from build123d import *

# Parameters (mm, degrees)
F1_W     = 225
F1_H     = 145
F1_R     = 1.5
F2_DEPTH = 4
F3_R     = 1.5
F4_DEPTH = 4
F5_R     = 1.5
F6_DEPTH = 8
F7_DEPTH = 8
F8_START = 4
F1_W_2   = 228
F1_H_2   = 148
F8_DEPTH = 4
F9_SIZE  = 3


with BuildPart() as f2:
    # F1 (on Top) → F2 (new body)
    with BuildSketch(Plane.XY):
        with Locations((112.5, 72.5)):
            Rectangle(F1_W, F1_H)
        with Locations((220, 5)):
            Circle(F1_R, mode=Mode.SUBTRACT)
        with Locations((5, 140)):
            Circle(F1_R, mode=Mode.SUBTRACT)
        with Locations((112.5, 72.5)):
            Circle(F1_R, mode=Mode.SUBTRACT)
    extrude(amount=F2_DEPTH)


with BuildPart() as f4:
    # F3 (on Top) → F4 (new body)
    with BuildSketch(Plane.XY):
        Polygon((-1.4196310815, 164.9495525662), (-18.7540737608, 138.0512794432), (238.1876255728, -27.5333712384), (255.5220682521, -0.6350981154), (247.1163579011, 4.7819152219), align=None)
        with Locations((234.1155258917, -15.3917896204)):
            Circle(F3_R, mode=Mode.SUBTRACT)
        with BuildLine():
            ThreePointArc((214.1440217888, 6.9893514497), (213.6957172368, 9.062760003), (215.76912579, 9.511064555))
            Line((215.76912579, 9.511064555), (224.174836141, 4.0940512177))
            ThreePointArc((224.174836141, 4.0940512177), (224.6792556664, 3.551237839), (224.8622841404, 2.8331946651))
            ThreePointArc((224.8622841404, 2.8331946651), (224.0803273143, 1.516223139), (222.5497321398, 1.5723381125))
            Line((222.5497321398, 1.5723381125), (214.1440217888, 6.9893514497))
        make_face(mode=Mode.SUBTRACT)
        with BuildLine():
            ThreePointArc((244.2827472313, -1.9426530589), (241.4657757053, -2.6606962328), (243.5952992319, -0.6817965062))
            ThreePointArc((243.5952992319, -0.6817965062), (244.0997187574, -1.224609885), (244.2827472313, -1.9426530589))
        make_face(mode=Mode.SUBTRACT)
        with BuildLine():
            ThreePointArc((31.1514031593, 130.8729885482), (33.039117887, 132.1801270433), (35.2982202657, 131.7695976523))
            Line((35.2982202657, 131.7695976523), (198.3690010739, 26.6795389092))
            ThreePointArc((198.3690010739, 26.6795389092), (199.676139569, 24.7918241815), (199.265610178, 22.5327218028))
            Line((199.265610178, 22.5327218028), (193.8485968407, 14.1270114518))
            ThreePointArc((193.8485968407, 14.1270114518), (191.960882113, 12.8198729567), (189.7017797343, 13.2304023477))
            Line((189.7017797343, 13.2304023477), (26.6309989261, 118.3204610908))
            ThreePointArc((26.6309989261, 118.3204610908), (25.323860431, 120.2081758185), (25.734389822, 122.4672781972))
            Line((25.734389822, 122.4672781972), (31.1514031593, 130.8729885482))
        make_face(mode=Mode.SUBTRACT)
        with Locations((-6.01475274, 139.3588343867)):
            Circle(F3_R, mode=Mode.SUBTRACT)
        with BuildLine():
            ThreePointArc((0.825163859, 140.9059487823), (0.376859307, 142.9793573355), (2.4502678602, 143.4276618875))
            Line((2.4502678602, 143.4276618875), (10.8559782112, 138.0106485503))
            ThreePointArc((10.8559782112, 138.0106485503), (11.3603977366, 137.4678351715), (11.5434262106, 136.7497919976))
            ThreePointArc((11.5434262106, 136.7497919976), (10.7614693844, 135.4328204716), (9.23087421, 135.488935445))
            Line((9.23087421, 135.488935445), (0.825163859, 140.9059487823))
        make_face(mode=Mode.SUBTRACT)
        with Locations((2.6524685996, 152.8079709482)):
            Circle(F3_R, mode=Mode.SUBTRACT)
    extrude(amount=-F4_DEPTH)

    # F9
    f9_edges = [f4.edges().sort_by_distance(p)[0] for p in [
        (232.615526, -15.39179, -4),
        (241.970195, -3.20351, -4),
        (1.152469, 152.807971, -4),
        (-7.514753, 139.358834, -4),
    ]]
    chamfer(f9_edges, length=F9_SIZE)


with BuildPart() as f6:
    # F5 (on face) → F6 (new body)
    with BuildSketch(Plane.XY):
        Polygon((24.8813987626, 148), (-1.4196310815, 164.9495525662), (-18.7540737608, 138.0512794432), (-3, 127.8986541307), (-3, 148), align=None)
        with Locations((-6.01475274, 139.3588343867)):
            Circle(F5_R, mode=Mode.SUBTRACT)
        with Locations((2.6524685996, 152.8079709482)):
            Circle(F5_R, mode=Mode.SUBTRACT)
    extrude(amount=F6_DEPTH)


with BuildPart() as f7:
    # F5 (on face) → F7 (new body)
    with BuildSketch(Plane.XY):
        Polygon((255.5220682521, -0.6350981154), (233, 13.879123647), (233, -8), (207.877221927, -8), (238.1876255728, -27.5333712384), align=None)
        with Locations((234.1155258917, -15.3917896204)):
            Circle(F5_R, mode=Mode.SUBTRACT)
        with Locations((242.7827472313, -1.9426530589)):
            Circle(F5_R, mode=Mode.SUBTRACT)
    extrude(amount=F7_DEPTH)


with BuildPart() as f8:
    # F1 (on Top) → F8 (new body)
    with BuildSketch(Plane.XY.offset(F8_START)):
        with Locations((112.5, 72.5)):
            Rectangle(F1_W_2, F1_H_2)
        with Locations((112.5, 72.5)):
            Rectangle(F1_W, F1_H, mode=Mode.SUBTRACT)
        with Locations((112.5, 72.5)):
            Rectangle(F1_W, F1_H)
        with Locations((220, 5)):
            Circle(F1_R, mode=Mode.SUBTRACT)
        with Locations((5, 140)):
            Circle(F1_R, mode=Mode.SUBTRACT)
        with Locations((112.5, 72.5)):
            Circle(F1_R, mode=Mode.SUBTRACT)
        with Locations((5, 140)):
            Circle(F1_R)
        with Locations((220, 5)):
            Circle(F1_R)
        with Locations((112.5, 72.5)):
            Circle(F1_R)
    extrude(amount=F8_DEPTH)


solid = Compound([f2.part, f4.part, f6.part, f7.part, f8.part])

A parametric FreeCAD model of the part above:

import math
import FreeCAD as App
import Part
import Sketcher

V = App.Vector
Q = App.Units.Quantity


def edges_at(feature, points):
    """Names of the edges that pass closest to the given points."""
    edges = feature.Shape.Edges
    near = lambda p: min(range(len(edges)), key=lambda i: edges[i].distToShape(Part.Vertex(*p))[0])
    return sorted({f"Edge{near(p) + 1}" for p in points})

doc = App.newDocument("Part")
body = doc.addObject("PartDesign::Body", "Body")

# Sketch on XY plane
sketch1 = body.newObject("Sketcher::SketchObject", "Sketch")
sketch1.AttachmentSupport = (doc.getObject("XY_Plane"), [""])
sketch1.MapMode = "FlatFace"
sketch1.addGeometry(Part.LineSegment(V(0, 145, 0), V(0, 0, 0)), False)
sketch1.addGeometry(Part.LineSegment(V(0, 0, 0), V(225, 0, 0)), False)
sketch1.addGeometry(Part.LineSegment(V(225, 0, 0), V(225, 145, 0)), False)
sketch1.addGeometry(Part.LineSegment(V(225, 145, 0), V(0, 145, 0)), False)
sketch1.addGeometry(Part.Circle(V(220, 5, 0), V(0, 0, 1), 1.5), False)
sketch1.addGeometry(Part.Circle(V(5, 140, 0), V(0, 0, 1), 1.5), False)
sketch1.addGeometry(Part.Circle(V(112.5, 72.5, 0), V(0, 0, 1), 1.5), False)
sketch1.addConstraint(Sketcher.Constraint("Coincident", 0, 2, 1, 1))
sketch1.addConstraint(Sketcher.Constraint("Coincident", 1, 2, 2, 1))
sketch1.addConstraint(Sketcher.Constraint("Coincident", 2, 2, 3, 1))
sketch1.addConstraint(Sketcher.Constraint("Coincident", 3, 2, 0, 1))
sketch1.addConstraint(Sketcher.Constraint("Vertical", 0))
sketch1.addConstraint(Sketcher.Constraint("Horizontal", 1))
sketch1.addConstraint(Sketcher.Constraint("Vertical", 2))
sketch1.addConstraint(Sketcher.Constraint("Horizontal", 3))
sketch1.addConstraint(Sketcher.Constraint("Coincident", 0, 2, -1, 1))
sketch1.addConstraint(Sketcher.Constraint("Equal", 4, 5))
sketch1.addConstraint(Sketcher.Constraint("Equal", 5, 6))
sketch1.addConstraint(Sketcher.Constraint("Diameter", 4, Q("3 mm")))
sketch1.addConstraint(Sketcher.Constraint("DistanceX", 1, 1, 1, 2, Q("225 mm")))
sketch1.addConstraint(Sketcher.Constraint("DistanceY", 0, 2, 0, 1, Q("145 mm")))
sketch1.addConstraint(Sketcher.Constraint("DistanceX", -1, 1, 4, 3, Q("220 mm")))
sketch1.addConstraint(Sketcher.Constraint("DistanceY", -1, 1, 4, 3, Q("5 mm")))
sketch1.addConstraint(Sketcher.Constraint("DistanceX", -1, 1, 5, 3, Q("5 mm")))
sketch1.addConstraint(Sketcher.Constraint("DistanceY", -1, 1, 5, 3, Q("140 mm")))
sketch1.addConstraint(Sketcher.Constraint("DistanceX", -1, 1, 6, 3, Q("112.5 mm")))
sketch1.addConstraint(Sketcher.Constraint("DistanceY", -1, 1, 6, 3, Q("72.5 mm")))
pad1 = body.newObject("PartDesign::Pad", "Pad")
pad1.Profile = sketch1
pad1.Length = 4
body2 = doc.addObject("PartDesign::Body", "Body001")

# Sketch on XY plane
sketch2 = body2.newObject("Sketcher::SketchObject", "Sketch001")
sketch2.AttachmentSupport = (doc.getObject("XY_Plane001"), [""])
sketch2.MapMode = "FlatFace"
sketch2.addGeometry(Part.LineSegment(V(-1.4, 164.9, 0), V(-18.8, 138.1, 0)), False)
sketch2.addGeometry(Part.LineSegment(V(-18.8, 138.1, 0), V(238.2, -27.5, 0)), False)
sketch2.addGeometry(Part.LineSegment(V(238.2, -27.5, 0), V(255.5, -0.6, 0)), False)
sketch2.addGeometry(Part.LineSegment(V(255.5, -0.6, 0), V(-1.4, 164.9, 0)), False)
sketch2.addGeometry(Part.Circle(V(234.1, -15.4, 0), V(0, 0, 1), 1.5), False)
sketch2.addGeometry(Part.ArcOfCircle(Part.Circle(V(242.8, -1.9, 0), V(0, 0, 1), 1.5), math.radians(0), math.radians(57)), False)
sketch2.addGeometry(Part.ArcOfCircle(Part.Circle(V(242.8, -1.9, 0), V(0, 0, 1), 1.5), math.radians(57), math.radians(360)), False)
sketch2.addGeometry(Part.LineSegment(V(222.5, 1.6, 0), V(214.1, 7, 0)), False)
sketch2.addGeometry(Part.ArcOfCircle(Part.Circle(V(215, 8.3, 0), V(0, 0, 1), 1.5), math.radians(57), math.radians(237)), False)
sketch2.addGeometry(Part.LineSegment(V(215.8, 9.5, 0), V(224.2, 4.1, 0)), False)
sketch2.addGeometry(Part.ArcOfCircle(Part.Circle(V(223.4, 2.8, 0), V(0, 0, 1), 1.5), math.radians(0), math.radians(57)), False)
sketch2.addGeometry(Part.ArcOfCircle(Part.Circle(V(223.4, 2.8, 0), V(0, 0, 1), 1.5), math.radians(-123), math.radians(0)), False)
sketch2.addGeometry(Part.LineSegment(V(25.7, 122.5, 0), V(31.2, 130.9, 0)), False)
sketch2.addGeometry(Part.ArcOfCircle(Part.Circle(V(33.7, 129.2, 0), V(0, 0, 1), 3), math.radians(57), math.radians(147)), False)
sketch2.addGeometry(Part.LineSegment(V(35.3, 131.8, 0), V(198.4, 26.7, 0)), False)
sketch2.addGeometry(Part.ArcOfCircle(Part.Circle(V(196.7, 24.2, 0), V(0, 0, 1), 3), math.radians(-33), math.radians(57)), False)
sketch2.addGeometry(Part.LineSegment(V(199.3, 22.5, 0), V(193.8, 14.1, 0)), False)
sketch2.addGeometry(Part.ArcOfCircle(Part.Circle(V(191.3, 15.8, 0), V(0, 0, 1), 3), math.radians(-123), math.radians(-33)), False)
sketch2.addGeometry(Part.LineSegment(V(189.7, 13.2, 0), V(26.6, 118.3, 0)), False)
sketch2.addGeometry(Part.ArcOfCircle(Part.Circle(V(28.3, 120.8, 0), V(0, 0, 1), 3), math.radians(147), math.radians(237)), False)
sketch2.addGeometry(Part.Circle(V(-6, 139.4, 0), V(0, 0, 1), 1.5), False)
sketch2.addGeometry(Part.LineSegment(V(9.2, 135.5, 0), V(0.8, 140.9, 0)), False)
sketch2.addGeometry(Part.ArcOfCircle(Part.Circle(V(1.6, 142.2, 0), V(0, 0, 1), 1.5), math.radians(57), math.radians(237)), False)
sketch2.addGeometry(Part.LineSegment(V(2.5, 143.4, 0), V(10.9, 138, 0)), False)
sketch2.addGeometry(Part.ArcOfCircle(Part.Circle(V(10, 136.7, 0), V(0, 0, 1), 1.5), math.radians(0), math.radians(57)), False)
sketch2.addGeometry(Part.ArcOfCircle(Part.Circle(V(10, 136.7, 0), V(0, 0, 1), 1.5), math.radians(-123), math.radians(0)), False)
sketch2.addGeometry(Part.Circle(V(2.7, 152.8, 0), V(0, 0, 1), 1.5), False)
sketch2.addConstraint(Sketcher.Constraint("Coincident", 0, 2, 1, 1))
sketch2.addConstraint(Sketcher.Constraint("Coincident", 1, 2, 2, 1))
sketch2.addConstraint(Sketcher.Constraint("Coincident", 2, 2, 3, 1))
sketch2.addConstraint(Sketcher.Constraint("Coincident", 3, 2, 0, 1))
sketch2.addConstraint(Sketcher.Constraint("Tangent", 5, 1, 6, 2))
sketch2.addConstraint(Sketcher.Constraint("Coincident", 6, 1, 5, 2))
sketch2.addConstraint(Sketcher.Constraint("Tangent", 7, 2, 8, 2))
sketch2.addConstraint(Sketcher.Constraint("Tangent", 8, 1, 9, 1))
sketch2.addConstraint(Sketcher.Constraint("Tangent", 9, 2, 10, 2))
sketch2.addConstraint(Sketcher.Constraint("Tangent", 10, 1, 11, 2))
sketch2.addConstraint(Sketcher.Constraint("Tangent", 11, 1, 7, 1))
sketch2.addConstraint(Sketcher.Constraint("Tangent", 12, 2, 13, 2))
sketch2.addConstraint(Sketcher.Constraint("Tangent", 13, 1, 14, 1))
sketch2.addConstraint(Sketcher.Constraint("Tangent", 14, 2, 15, 2))
sketch2.addConstraint(Sketcher.Constraint("Tangent", 15, 1, 16, 1))
sketch2.addConstraint(Sketcher.Constraint("Tangent", 16, 2, 17, 2))
sketch2.addConstraint(Sketcher.Constraint("Tangent", 17, 1, 18, 1))
sketch2.addConstraint(Sketcher.Constraint("Tangent", 18, 2, 19, 2))
sketch2.addConstraint(Sketcher.Constraint("Tangent", 19, 1, 12, 1))
sketch2.addConstraint(Sketcher.Constraint("Tangent", 21, 2, 22, 2))
sketch2.addConstraint(Sketcher.Constraint("Tangent", 22, 1, 23, 1))
sketch2.addConstraint(Sketcher.Constraint("Tangent", 23, 2, 24, 2))
sketch2.addConstraint(Sketcher.Constraint("Tangent", 24, 1, 25, 2))
sketch2.addConstraint(Sketcher.Constraint("Tangent", 25, 1, 21, 1))
sketch2.addConstraint(Sketcher.Constraint("Equal", 4, 5))
sketch2.addConstraint(Sketcher.Constraint("Equal", 6, 8))
sketch2.addConstraint(Sketcher.Constraint("Equal", 8, 10))
sketch2.addConstraint(Sketcher.Constraint("Equal", 10, 11))
sketch2.addConstraint(Sketcher.Constraint("Equal", 13, 15))
sketch2.addConstraint(Sketcher.Constraint("Equal", 15, 17))
sketch2.addConstraint(Sketcher.Constraint("Equal", 17, 19))
sketch2.addConstraint(Sketcher.Constraint("Equal", 11, 20))
sketch2.addConstraint(Sketcher.Constraint("Equal", 20, 22))
sketch2.addConstraint(Sketcher.Constraint("Equal", 22, 24))
sketch2.addConstraint(Sketcher.Constraint("Equal", 24, 25))
sketch2.addConstraint(Sketcher.Constraint("Equal", 25, 26))
sketch2.addConstraint(Sketcher.Constraint("Perpendicular", 0, 1))
sketch2.addConstraint(Sketcher.Constraint("Perpendicular", 1, 2))
sketch2.addConstraint(Sketcher.Constraint("Perpendicular", 2, 3))
sketch2.addConstraint(Sketcher.Constraint("Parallel", 3, 7))
sketch2.addConstraint(Sketcher.Constraint("Perpendicular", 9, 12))
sketch2.addConstraint(Sketcher.Constraint("Perpendicular", 12, 14))
sketch2.addConstraint(Sketcher.Constraint("Perpendicular", 14, 16))
sketch2.addConstraint(Sketcher.Constraint("Perpendicular", 16, 18))
sketch2.addConstraint(Sketcher.Constraint("Parallel", 18, 21))
sketch2.addConstraint(Sketcher.Constraint("Horizontal", 6, 3, 5, 1))
sketch2.addConstraint(Sketcher.Constraint("Horizontal", 11, 3, 10, 1))
sketch2.addConstraint(Sketcher.Constraint("Horizontal", 25, 3, 24, 1))
sketch2.addConstraint(Sketcher.Constraint("Equal", 9, 12))
sketch2.addConstraint(Sketcher.Constraint("Equal", 16, 21))
sketch2.addConstraint(Sketcher.Constraint("Diameter", 4, Q("3 mm")))
sketch2.addConstraint(Sketcher.Constraint("Radius", 13, Q("3 mm")))
sketch2.addConstraint(Sketcher.Constraint("Distance", 0, Q("32 mm")))
sketch2.addConstraint(Sketcher.Constraint("Distance", 7, Q("10 mm")))
sketch2.addConstraint(Sketcher.Constraint("Distance", 14, Q("194 mm")))
sketch2.addConstraint(Sketcher.Constraint("DistanceX", -1, 1, 14, 2, Q("198.369001 mm")))
sketch2.addConstraint(Sketcher.Constraint("DistanceX", -1, 1, 18, 2, Q("26.630999 mm")))
sketch2.addConstraint(Sketcher.Constraint("DistanceY", 2, 2, -1, 1, Q("0.635098 mm")))
sketch2.addConstraint(Sketcher.Constraint("DistanceX", -1, 1, 6, 1, Q("243.595299 mm")))
sketch2.addConstraint(Sketcher.Constraint("DistanceX", 17, 3, 10, 3, Q("32.0354 mm")))
sketch2.addConstraint(Sketcher.Constraint("DistanceX", 22, 3, 13, 3, Q("32.0354 mm")))
sketch2.addConstraint(Sketcher.Constraint("DistanceX", 0, 2, 24, 3, Q("28.7975 mm")))
sketch2.addConstraint(Sketcher.Constraint("DistanceX", 4, 3, 1, 2, Q("4.0721 mm")))
sketch2.addConstraint(Sketcher.Constraint("DistanceX", 3, 2, 26, 3, Q("4.0721 mm")))
sketch2.addConstraint(Sketcher.Constraint("DistanceY", 6, 1, 2, 2, Q("0.046698 mm")))
sketch2.addConstraint(Sketcher.Constraint("DistanceY", 4, 3, -1, 1, Q("15.39179 mm")))
sketch2.addConstraint(Sketcher.Constraint("DistanceY", -1, 1, 8, 3, Q("8.250208 mm")))
sketch2.addConstraint(Sketcher.Constraint("DistanceY", -1, 1, 24, 3, Q("136.749792 mm")))
sketch2.addConstraint(Sketcher.Constraint("DistanceY", -1, 1, 26, 3, Q("152.807971 mm")))
sketch2.addConstraint(Sketcher.Constraint("DistanceY", -1, 1, 0, 2, Q("138.051279 mm")))
sketch2.addConstraint(Sketcher.Constraint("DistanceY", -1, 1, 12, 2, Q("130.872989 mm")))
sketch2.addConstraint(Sketcher.Constraint("DistanceX", 4, 3, 5, 3, Q("8.667221 mm")))
sketch2.addConstraint(Sketcher.Constraint("DistanceY", 19, 3, 20, 3, Q("18.51666 mm")))
sketch2.addConstraint(Sketcher.Constraint("DistanceX", 20, 3, 13, 3, Q("39.687869 mm")))
pad2 = body2.newObject("PartDesign::Pad", "Pad001")
pad2.Profile = sketch2
pad2.Length = 4
pad2.Reversed = True
doc.recompute()

chamfer = body2.newObject("PartDesign::Chamfer", "Chamfer")
chamfer.Base = (pad2, edges_at(pad2, [
    (232.616, -15.392, -4),
    (241.466, -2.661, -4),
    (1.152, 152.808, -4),
    (-7.515, 139.359, -4),
]))
chamfer.Size = 3
body3 = doc.addObject("PartDesign::Body", "Body002")

# Sketch on XY plane
sketch3 = body3.newObject("Sketcher::SketchObject", "Sketch002")
sketch3.AttachmentSupport = (doc.getObject("XY_Plane002"), [""])
sketch3.MapMode = "FlatFace"
sketch3.addGeometry(Part.LineSegment(V(24.9, 148, 0), V(-1.4, 164.9, 0)), False)
sketch3.addGeometry(Part.LineSegment(V(-1.4, 164.9, 0), V(-18.8, 138.1, 0)), False)
sketch3.addGeometry(Part.LineSegment(V(-18.8, 138.1, 0), V(-3, 127.9, 0)), False)
sketch3.addGeometry(Part.LineSegment(V(-3, 127.9, 0), V(-3, 148, 0)), False)
sketch3.addGeometry(Part.LineSegment(V(-3, 148, 0), V(24.9, 148, 0)), False)
sketch3.addGeometry(Part.Circle(V(-6, 139.4, 0), V(0, 0, 1), 1.5), False)
sketch3.addGeometry(Part.Circle(V(2.7, 152.8, 0), V(0, 0, 1), 1.5), False)
sketch3.addConstraint(Sketcher.Constraint("Coincident", 0, 2, 1, 1))
sketch3.addConstraint(Sketcher.Constraint("Coincident", 1, 2, 2, 1))
sketch3.addConstraint(Sketcher.Constraint("Coincident", 2, 2, 3, 1))
sketch3.addConstraint(Sketcher.Constraint("Coincident", 3, 2, 4, 1))
sketch3.addConstraint(Sketcher.Constraint("Coincident", 4, 2, 0, 1))
sketch3.addConstraint(Sketcher.Constraint("Vertical", 3))
sketch3.addConstraint(Sketcher.Constraint("Horizontal", 4))
sketch3.addConstraint(Sketcher.Constraint("Equal", 5, 6))
sketch3.addConstraint(Sketcher.Constraint("Perpendicular", 0, 1))
sketch3.addConstraint(Sketcher.Constraint("Perpendicular", 1, 2))
sketch3.addConstraint(Sketcher.Constraint("Diameter", 5, Q("3 mm")))
sketch3.addConstraint(Sketcher.Constraint("Distance", 1, Q("32 mm")))
sketch3.addConstraint(Sketcher.Constraint("DistanceX", 2, 2, -1, 1, Q("3 mm")))
sketch3.addConstraint(Sketcher.Constraint("DistanceY", -1, 1, 3, 2, Q("148 mm")))
sketch3.addConstraint(Sketcher.Constraint("DistanceX", 4, 1, 4, 2, Q("27.881399 mm")))
sketch3.addConstraint(Sketcher.Constraint("DistanceX", 0, 2, 6, 3, Q("4.0721 mm")))
sketch3.addConstraint(Sketcher.Constraint("DistanceY", 2, 2, 0, 2, Q("37.050898 mm")))
sketch3.addConstraint(Sketcher.Constraint("Distance", 0, Q("31.289479 mm")))
sketch3.addConstraint(Sketcher.Constraint("DistanceY", -1, 1, 6, 3, Q("152.807971 mm")))
sketch3.addConstraint(Sketcher.Constraint("DistanceX", 5, 3, 6, 3, Q("8.667221 mm")))
sketch3.addConstraint(Sketcher.Constraint("DistanceY", 5, 3, 0, 2, Q("25.590718 mm")))
pad3 = body3.newObject("PartDesign::Pad", "Pad002")
pad3.Profile = sketch3
pad3.Length = 8
body4 = doc.addObject("PartDesign::Body", "Body003")

# Sketch on XY plane
sketch4 = body4.newObject("Sketcher::SketchObject", "Sketch003")
sketch4.AttachmentSupport = (doc.getObject("XY_Plane003"), [""])
sketch4.MapMode = "FlatFace"
sketch4.addGeometry(Part.LineSegment(V(255.5, -0.6, 0), V(233, 13.9, 0)), False)
sketch4.addGeometry(Part.LineSegment(V(233, 13.9, 0), V(233, -8, 0)), False)
sketch4.addGeometry(Part.LineSegment(V(233, -8, 0), V(207.9, -8, 0)), False)
sketch4.addGeometry(Part.LineSegment(V(207.9, -8, 0), V(238.2, -27.5, 0)), False)
sketch4.addGeometry(Part.LineSegment(V(238.2, -27.5, 0), V(255.5, -0.6, 0)), False)
sketch4.addGeometry(Part.Circle(V(234.1, -15.4, 0), V(0, 0, 1), 1.5), False)
sketch4.addGeometry(Part.Circle(V(242.8, -1.9, 0), V(0, 0, 1), 1.5), False)
sketch4.addConstraint(Sketcher.Constraint("Coincident", 0, 2, 1, 1))
sketch4.addConstraint(Sketcher.Constraint("Coincident", 1, 2, 2, 1))
sketch4.addConstraint(Sketcher.Constraint("Coincident", 2, 2, 3, 1))
sketch4.addConstraint(Sketcher.Constraint("Coincident", 3, 2, 4, 1))
sketch4.addConstraint(Sketcher.Constraint("Coincident", 4, 2, 0, 1))
sketch4.addConstraint(Sketcher.Constraint("Vertical", 1))
sketch4.addConstraint(Sketcher.Constraint("Horizontal", 2))
sketch4.addConstraint(Sketcher.Constraint("Equal", 5, 6))
sketch4.addConstraint(Sketcher.Constraint("Parallel", 0, 3))
sketch4.addConstraint(Sketcher.Constraint("Perpendicular", 3, 4))
sketch4.addConstraint(Sketcher.Constraint("Diameter", 5, Q("3 mm")))
sketch4.addConstraint(Sketcher.Constraint("Distance", 4, Q("32 mm")))
sketch4.addConstraint(Sketcher.Constraint("DistanceX", -1, 1, 0, 2, Q("233 mm")))
sketch4.addConstraint(Sketcher.Constraint("DistanceY", 1, 2, -1, 1, Q("8 mm")))
sketch4.addConstraint(Sketcher.Constraint("Distance", 3, Q("36.059301 mm")))
sketch4.addConstraint(Sketcher.Constraint("DistanceX", 2, 2, 2, 1, Q("25.122778 mm")))
sketch4.addConstraint(Sketcher.Constraint("DistanceY", 4, 2, -1, 1, Q("0.635098 mm")))
sketch4.addConstraint(Sketcher.Constraint("DistanceX", 5, 3, 3, 2, Q("4.0721 mm")))
sketch4.addConstraint(Sketcher.Constraint("DistanceY", 5, 3, -1, 1, Q("15.39179 mm")))
sketch4.addConstraint(Sketcher.Constraint("DistanceX", 5, 3, 6, 3, Q("8.667221 mm")))
sketch4.addConstraint(Sketcher.Constraint("DistanceY", 3, 2, 6, 3, Q("25.590718 mm")))
pad4 = body4.newObject("PartDesign::Pad", "Pad003")
pad4.Profile = sketch4
pad4.Length = 8
body5 = doc.addObject("PartDesign::Body", "Body004")

# Sketch on XY plane
sketch5 = body5.newObject("Sketcher::SketchObject", "Sketch004")
sketch5.AttachmentSupport = (doc.getObject("XY_Plane004"), [""])
sketch5.MapMode = "FlatFace"
sketch5.AttachmentOffset = App.Placement(V(0, 0, 4), App.Rotation())
sketch5.addGeometry(Part.LineSegment(V(-2, 146, 0), V(-2, -2, 0)), False)
sketch5.addGeometry(Part.LineSegment(V(-2, -2, 0), V(226, -2, 0)), False)
sketch5.addGeometry(Part.LineSegment(V(226, -2, 0), V(226, 146, 0)), False)
sketch5.addGeometry(Part.LineSegment(V(226, 146, 0), V(-2, 146, 0)), False)
sketch5.addConstraint(Sketcher.Constraint("Coincident", 0, 2, 1, 1))
sketch5.addConstraint(Sketcher.Constraint("Coincident", 1, 2, 2, 1))
sketch5.addConstraint(Sketcher.Constraint("Coincident", 2, 2, 3, 1))
sketch5.addConstraint(Sketcher.Constraint("Coincident", 3, 2, 0, 1))
sketch5.addConstraint(Sketcher.Constraint("Vertical", 0))
sketch5.addConstraint(Sketcher.Constraint("Horizontal", 1))
sketch5.addConstraint(Sketcher.Constraint("Vertical", 2))
sketch5.addConstraint(Sketcher.Constraint("Horizontal", 3))
sketch5.addConstraint(Sketcher.Constraint("DistanceX", 1, 1, 1, 2, Q("228 mm")))
sketch5.addConstraint(Sketcher.Constraint("DistanceY", 0, 2, 0, 1, Q("148 mm")))
sketch5.addConstraint(Sketcher.Constraint("DistanceX", 0, 2, -1, 1, Q("1.5 mm")))
sketch5.addConstraint(Sketcher.Constraint("DistanceY", 0, 2, -1, 1, Q("1.5 mm")))
pad5 = body5.newObject("PartDesign::Pad", "Pad004")
pad5.Profile = sketch5
pad5.Length = 4

doc.recompute()
